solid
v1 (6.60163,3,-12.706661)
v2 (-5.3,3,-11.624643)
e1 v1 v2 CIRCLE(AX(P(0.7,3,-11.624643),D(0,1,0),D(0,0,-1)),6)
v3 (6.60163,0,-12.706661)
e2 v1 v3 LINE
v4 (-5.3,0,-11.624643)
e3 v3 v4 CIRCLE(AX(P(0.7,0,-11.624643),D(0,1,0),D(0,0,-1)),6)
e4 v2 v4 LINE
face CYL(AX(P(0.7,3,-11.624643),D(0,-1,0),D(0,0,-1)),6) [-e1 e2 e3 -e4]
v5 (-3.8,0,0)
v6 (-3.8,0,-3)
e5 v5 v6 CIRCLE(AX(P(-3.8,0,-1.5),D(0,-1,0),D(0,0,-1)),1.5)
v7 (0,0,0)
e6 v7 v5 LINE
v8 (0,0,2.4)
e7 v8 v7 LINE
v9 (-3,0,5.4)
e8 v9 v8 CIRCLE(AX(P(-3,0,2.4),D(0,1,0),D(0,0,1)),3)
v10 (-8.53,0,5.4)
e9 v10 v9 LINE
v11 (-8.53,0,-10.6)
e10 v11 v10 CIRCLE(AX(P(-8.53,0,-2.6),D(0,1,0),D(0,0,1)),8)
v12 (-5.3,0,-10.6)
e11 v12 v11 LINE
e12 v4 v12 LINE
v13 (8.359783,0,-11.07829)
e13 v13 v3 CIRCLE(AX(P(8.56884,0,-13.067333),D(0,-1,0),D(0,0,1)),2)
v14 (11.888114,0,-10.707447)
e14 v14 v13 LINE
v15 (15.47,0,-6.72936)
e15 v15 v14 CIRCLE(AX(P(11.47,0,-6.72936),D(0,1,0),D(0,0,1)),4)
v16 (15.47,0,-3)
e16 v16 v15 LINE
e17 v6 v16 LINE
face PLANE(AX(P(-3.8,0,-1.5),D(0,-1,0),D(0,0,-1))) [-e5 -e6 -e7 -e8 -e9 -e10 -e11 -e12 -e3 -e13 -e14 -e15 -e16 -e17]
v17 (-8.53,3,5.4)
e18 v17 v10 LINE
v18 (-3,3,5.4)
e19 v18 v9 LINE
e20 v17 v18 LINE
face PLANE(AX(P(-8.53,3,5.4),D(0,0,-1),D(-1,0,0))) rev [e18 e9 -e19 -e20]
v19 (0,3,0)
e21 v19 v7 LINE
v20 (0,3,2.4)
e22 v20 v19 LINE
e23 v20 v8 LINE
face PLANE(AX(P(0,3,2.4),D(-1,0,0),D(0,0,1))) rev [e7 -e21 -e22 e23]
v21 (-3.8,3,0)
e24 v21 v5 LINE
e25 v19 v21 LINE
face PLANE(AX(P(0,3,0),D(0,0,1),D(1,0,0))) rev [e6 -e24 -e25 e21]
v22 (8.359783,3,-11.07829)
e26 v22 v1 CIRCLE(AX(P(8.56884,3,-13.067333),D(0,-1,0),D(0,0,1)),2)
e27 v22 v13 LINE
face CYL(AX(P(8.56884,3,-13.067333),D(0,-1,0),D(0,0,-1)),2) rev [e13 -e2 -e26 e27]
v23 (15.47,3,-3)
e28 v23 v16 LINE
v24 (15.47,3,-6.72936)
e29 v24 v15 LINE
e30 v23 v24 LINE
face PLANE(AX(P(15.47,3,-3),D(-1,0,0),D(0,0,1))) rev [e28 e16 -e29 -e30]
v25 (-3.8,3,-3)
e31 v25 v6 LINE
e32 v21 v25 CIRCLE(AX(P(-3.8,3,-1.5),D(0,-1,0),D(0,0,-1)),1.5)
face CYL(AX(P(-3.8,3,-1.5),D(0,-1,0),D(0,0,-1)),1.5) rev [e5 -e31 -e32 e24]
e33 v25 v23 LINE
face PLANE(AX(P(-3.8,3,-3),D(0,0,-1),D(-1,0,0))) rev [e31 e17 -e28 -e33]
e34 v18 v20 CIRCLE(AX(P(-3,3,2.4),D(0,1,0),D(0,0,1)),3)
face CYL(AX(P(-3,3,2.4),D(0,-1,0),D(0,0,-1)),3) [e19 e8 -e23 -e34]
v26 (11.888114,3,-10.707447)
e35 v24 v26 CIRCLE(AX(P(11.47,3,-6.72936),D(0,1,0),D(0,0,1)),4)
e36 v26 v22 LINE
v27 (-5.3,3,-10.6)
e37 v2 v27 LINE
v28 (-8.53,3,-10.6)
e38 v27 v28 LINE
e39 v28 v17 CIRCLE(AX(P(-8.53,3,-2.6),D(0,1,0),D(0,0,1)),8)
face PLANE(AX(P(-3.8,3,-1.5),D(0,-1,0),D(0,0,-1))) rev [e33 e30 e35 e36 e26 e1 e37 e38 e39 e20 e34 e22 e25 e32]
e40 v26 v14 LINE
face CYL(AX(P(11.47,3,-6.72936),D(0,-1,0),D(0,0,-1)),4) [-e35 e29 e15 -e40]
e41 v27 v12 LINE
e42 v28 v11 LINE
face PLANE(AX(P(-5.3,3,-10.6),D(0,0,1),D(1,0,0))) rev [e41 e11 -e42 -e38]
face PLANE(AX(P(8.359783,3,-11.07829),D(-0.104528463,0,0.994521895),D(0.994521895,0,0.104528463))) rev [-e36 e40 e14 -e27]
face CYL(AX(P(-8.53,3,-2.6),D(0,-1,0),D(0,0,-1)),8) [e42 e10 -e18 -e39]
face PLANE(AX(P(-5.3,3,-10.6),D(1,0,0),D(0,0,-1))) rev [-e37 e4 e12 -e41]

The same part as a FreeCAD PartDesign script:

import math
import FreeCAD as App
import Part
import Sketcher
Q = App.Units.Quantity

doc = App.newDocument("Part")
body = doc.addObject("PartDesign::Body", "Body")

# Sketch on XZ plane
sketch1 = doc.addObject("Sketcher::SketchObject", "Sketch")
body.addObject(sketch1)
sketch1.AttachmentSupport = (doc.XZ_Plane, [""])
sketch1.MapMode = "FlatFace"
sketch1.addGeometry([
    Part.LineSegment(App.Vector(0, 0, 0), App.Vector(-3.8, 0, 0)),  # 0
    Part.ArcOfCircle(Part.Circle(App.Vector(-3.8, -1.5, 0), App.Vector(0, 0, 1), 1.5), math.radians(90), math.radians(270)),  # 1
    Part.LineSegment(App.Vector(-3.8, -3, 0), App.Vector(15.5, -3, 0)),  # 2
    Part.LineSegment(App.Vector(15.5, -3, 0), App.Vector(15.5, -6.7, 0)),  # 3
    Part.ArcOfCircle(Part.Circle(App.Vector(11.5, -6.7, 0), App.Vector(0, 0, 1), 4), math.radians(-84), math.radians(0)),  # 4
    Part.LineSegment(App.Vector(11.9, -10.7, 0), App.Vector(8.4, -11.1, 0)),  # 5
    Part.ArcOfCircle(Part.Circle(App.Vector(8.6, -13.1, 0), App.Vector(0, 0, 1), 2), math.radians(96), math.radians(170)),  # 6
    Part.ArcOfCircle(Part.Circle(App.Vector(0.7, -11.6, 0), App.Vector(0, 0, 1), 6), math.radians(180), math.radians(350)),  # 7
    Part.LineSegment(App.Vector(-5.3, -11.6, 0), App.Vector(-5.3, -10.6, 0)),  # 8
    Part.LineSegment(App.Vector(-5.3, -10.6, 0), App.Vector(-8.5, -10.6, 0)),  # 9
    Part.ArcOfCircle(Part.Circle(App.Vector(-8.5, -2.6, 0), App.Vector(0, 0, 1), 8), math.radians(90), math.radians(270)),  # 10
    Part.LineSegment(App.Vector(-8.5, 5.4, 0), App.Vector(-3, 5.4, 0)),  # 11
    Part.ArcOfCircle(Part.Circle(App.Vector(-3, 2.4, 0), App.Vector(0, 0, 1), 3), math.radians(0), math.radians(90)),  # 12
    Part.LineSegment(App.Vector(0, 2.4, 0), App.Vector(0, 0, 0)),  # 13
], False)
sketch1.addConstraint([
    Sketcher.Constraint("Tangent", 0, 2, 1, 1),
    Sketcher.Constraint("Tangent", 1, 2, 2, 1),
    Sketcher.Constraint("Coincident", 2, 2, 3, 1),
    Sketcher.Constraint("Tangent", 3, 2, 4, 2),
    Sketcher.Constraint("Tangent", 4, 1, 5, 1),
    Sketcher.Constraint("Tangent", 5, 2, 6, 1),
    Sketcher.Constraint("Tangent", 6, 2, 7, 2),
    Sketcher.Constraint("Tangent", 7, 1, 8, 1),
    Sketcher.Constraint("Coincident", 8, 2, 9, 1),
    Sketcher.Constraint("Tangent", 9, 2, 10, 2),
    Sketcher.Constraint("Tangent", 10, 1, 11, 1),
    Sketcher.Constraint("Tangent", 11, 2, 12, 2),
    Sketcher.Constraint("Tangent", 12, 1, 13, 1),
    Sketcher.Constraint("Coincident", 13, 2, 0, 1),
    Sketcher.Constraint("Horizontal", 0),
    Sketcher.Constraint("Horizontal", 2),
    Sketcher.Constraint("Vertical", 3),
    Sketcher.Constraint("Vertical", 8),
    Sketcher.Constraint("Horizontal", 9),
    Sketcher.Constraint("Horizontal", 11),
    Sketcher.Constraint("Vertical", 13),
    Sketcher.Constraint("Coincident", 13, 2, -1, 1),
    Sketcher.Constraint("Radius", 4, Q("4 mm")),
    Sketcher.Constraint("Radius", 6, Q("2 mm")),
    Sketcher.Constraint("Radius", 7, Q("6 mm")),
    Sketcher.Constraint("Radius", 10, Q("8 mm")),
    Sketcher.Constraint("Radius", 12, Q("3 mm")),
    Sketcher.Constraint("Radius", 1, Q("1.5 mm")),
    Sketcher.Constraint("Angle", 5, Q("-174 deg")),
    Sketcher.Constraint("DistanceX", 0, 2, 0, 1, Q("3.8 mm")),
    Sketcher.Constraint("DistanceY", 13, 2, 13, 1, Q("2.4 mm")),
    Sketcher.Constraint("DistanceX", 10, 3, 4, 3, Q("20 mm")),
    Sketcher.Constraint("DistanceX", 2, 1, 2, 2, Q("19.27 mm")),
    Sketcher.Constraint("DistanceX", 9, 2, 9, 1, Q("3.23 mm")),
    Sketcher.Constraint("DistanceY", 3, 2, 3, 1, Q("3.72936 mm")),
    Sketcher.Constraint("DistanceY", 6, 2, 4, 3, Q("5.977301 mm")),
])
pad1 = doc.addObject("PartDesign::Pad", "Pad")
body.addObject(pad1)
pad1.Profile = sketch1
pad1.Length = 3
pad1.Reversed = True

doc.recompute()
